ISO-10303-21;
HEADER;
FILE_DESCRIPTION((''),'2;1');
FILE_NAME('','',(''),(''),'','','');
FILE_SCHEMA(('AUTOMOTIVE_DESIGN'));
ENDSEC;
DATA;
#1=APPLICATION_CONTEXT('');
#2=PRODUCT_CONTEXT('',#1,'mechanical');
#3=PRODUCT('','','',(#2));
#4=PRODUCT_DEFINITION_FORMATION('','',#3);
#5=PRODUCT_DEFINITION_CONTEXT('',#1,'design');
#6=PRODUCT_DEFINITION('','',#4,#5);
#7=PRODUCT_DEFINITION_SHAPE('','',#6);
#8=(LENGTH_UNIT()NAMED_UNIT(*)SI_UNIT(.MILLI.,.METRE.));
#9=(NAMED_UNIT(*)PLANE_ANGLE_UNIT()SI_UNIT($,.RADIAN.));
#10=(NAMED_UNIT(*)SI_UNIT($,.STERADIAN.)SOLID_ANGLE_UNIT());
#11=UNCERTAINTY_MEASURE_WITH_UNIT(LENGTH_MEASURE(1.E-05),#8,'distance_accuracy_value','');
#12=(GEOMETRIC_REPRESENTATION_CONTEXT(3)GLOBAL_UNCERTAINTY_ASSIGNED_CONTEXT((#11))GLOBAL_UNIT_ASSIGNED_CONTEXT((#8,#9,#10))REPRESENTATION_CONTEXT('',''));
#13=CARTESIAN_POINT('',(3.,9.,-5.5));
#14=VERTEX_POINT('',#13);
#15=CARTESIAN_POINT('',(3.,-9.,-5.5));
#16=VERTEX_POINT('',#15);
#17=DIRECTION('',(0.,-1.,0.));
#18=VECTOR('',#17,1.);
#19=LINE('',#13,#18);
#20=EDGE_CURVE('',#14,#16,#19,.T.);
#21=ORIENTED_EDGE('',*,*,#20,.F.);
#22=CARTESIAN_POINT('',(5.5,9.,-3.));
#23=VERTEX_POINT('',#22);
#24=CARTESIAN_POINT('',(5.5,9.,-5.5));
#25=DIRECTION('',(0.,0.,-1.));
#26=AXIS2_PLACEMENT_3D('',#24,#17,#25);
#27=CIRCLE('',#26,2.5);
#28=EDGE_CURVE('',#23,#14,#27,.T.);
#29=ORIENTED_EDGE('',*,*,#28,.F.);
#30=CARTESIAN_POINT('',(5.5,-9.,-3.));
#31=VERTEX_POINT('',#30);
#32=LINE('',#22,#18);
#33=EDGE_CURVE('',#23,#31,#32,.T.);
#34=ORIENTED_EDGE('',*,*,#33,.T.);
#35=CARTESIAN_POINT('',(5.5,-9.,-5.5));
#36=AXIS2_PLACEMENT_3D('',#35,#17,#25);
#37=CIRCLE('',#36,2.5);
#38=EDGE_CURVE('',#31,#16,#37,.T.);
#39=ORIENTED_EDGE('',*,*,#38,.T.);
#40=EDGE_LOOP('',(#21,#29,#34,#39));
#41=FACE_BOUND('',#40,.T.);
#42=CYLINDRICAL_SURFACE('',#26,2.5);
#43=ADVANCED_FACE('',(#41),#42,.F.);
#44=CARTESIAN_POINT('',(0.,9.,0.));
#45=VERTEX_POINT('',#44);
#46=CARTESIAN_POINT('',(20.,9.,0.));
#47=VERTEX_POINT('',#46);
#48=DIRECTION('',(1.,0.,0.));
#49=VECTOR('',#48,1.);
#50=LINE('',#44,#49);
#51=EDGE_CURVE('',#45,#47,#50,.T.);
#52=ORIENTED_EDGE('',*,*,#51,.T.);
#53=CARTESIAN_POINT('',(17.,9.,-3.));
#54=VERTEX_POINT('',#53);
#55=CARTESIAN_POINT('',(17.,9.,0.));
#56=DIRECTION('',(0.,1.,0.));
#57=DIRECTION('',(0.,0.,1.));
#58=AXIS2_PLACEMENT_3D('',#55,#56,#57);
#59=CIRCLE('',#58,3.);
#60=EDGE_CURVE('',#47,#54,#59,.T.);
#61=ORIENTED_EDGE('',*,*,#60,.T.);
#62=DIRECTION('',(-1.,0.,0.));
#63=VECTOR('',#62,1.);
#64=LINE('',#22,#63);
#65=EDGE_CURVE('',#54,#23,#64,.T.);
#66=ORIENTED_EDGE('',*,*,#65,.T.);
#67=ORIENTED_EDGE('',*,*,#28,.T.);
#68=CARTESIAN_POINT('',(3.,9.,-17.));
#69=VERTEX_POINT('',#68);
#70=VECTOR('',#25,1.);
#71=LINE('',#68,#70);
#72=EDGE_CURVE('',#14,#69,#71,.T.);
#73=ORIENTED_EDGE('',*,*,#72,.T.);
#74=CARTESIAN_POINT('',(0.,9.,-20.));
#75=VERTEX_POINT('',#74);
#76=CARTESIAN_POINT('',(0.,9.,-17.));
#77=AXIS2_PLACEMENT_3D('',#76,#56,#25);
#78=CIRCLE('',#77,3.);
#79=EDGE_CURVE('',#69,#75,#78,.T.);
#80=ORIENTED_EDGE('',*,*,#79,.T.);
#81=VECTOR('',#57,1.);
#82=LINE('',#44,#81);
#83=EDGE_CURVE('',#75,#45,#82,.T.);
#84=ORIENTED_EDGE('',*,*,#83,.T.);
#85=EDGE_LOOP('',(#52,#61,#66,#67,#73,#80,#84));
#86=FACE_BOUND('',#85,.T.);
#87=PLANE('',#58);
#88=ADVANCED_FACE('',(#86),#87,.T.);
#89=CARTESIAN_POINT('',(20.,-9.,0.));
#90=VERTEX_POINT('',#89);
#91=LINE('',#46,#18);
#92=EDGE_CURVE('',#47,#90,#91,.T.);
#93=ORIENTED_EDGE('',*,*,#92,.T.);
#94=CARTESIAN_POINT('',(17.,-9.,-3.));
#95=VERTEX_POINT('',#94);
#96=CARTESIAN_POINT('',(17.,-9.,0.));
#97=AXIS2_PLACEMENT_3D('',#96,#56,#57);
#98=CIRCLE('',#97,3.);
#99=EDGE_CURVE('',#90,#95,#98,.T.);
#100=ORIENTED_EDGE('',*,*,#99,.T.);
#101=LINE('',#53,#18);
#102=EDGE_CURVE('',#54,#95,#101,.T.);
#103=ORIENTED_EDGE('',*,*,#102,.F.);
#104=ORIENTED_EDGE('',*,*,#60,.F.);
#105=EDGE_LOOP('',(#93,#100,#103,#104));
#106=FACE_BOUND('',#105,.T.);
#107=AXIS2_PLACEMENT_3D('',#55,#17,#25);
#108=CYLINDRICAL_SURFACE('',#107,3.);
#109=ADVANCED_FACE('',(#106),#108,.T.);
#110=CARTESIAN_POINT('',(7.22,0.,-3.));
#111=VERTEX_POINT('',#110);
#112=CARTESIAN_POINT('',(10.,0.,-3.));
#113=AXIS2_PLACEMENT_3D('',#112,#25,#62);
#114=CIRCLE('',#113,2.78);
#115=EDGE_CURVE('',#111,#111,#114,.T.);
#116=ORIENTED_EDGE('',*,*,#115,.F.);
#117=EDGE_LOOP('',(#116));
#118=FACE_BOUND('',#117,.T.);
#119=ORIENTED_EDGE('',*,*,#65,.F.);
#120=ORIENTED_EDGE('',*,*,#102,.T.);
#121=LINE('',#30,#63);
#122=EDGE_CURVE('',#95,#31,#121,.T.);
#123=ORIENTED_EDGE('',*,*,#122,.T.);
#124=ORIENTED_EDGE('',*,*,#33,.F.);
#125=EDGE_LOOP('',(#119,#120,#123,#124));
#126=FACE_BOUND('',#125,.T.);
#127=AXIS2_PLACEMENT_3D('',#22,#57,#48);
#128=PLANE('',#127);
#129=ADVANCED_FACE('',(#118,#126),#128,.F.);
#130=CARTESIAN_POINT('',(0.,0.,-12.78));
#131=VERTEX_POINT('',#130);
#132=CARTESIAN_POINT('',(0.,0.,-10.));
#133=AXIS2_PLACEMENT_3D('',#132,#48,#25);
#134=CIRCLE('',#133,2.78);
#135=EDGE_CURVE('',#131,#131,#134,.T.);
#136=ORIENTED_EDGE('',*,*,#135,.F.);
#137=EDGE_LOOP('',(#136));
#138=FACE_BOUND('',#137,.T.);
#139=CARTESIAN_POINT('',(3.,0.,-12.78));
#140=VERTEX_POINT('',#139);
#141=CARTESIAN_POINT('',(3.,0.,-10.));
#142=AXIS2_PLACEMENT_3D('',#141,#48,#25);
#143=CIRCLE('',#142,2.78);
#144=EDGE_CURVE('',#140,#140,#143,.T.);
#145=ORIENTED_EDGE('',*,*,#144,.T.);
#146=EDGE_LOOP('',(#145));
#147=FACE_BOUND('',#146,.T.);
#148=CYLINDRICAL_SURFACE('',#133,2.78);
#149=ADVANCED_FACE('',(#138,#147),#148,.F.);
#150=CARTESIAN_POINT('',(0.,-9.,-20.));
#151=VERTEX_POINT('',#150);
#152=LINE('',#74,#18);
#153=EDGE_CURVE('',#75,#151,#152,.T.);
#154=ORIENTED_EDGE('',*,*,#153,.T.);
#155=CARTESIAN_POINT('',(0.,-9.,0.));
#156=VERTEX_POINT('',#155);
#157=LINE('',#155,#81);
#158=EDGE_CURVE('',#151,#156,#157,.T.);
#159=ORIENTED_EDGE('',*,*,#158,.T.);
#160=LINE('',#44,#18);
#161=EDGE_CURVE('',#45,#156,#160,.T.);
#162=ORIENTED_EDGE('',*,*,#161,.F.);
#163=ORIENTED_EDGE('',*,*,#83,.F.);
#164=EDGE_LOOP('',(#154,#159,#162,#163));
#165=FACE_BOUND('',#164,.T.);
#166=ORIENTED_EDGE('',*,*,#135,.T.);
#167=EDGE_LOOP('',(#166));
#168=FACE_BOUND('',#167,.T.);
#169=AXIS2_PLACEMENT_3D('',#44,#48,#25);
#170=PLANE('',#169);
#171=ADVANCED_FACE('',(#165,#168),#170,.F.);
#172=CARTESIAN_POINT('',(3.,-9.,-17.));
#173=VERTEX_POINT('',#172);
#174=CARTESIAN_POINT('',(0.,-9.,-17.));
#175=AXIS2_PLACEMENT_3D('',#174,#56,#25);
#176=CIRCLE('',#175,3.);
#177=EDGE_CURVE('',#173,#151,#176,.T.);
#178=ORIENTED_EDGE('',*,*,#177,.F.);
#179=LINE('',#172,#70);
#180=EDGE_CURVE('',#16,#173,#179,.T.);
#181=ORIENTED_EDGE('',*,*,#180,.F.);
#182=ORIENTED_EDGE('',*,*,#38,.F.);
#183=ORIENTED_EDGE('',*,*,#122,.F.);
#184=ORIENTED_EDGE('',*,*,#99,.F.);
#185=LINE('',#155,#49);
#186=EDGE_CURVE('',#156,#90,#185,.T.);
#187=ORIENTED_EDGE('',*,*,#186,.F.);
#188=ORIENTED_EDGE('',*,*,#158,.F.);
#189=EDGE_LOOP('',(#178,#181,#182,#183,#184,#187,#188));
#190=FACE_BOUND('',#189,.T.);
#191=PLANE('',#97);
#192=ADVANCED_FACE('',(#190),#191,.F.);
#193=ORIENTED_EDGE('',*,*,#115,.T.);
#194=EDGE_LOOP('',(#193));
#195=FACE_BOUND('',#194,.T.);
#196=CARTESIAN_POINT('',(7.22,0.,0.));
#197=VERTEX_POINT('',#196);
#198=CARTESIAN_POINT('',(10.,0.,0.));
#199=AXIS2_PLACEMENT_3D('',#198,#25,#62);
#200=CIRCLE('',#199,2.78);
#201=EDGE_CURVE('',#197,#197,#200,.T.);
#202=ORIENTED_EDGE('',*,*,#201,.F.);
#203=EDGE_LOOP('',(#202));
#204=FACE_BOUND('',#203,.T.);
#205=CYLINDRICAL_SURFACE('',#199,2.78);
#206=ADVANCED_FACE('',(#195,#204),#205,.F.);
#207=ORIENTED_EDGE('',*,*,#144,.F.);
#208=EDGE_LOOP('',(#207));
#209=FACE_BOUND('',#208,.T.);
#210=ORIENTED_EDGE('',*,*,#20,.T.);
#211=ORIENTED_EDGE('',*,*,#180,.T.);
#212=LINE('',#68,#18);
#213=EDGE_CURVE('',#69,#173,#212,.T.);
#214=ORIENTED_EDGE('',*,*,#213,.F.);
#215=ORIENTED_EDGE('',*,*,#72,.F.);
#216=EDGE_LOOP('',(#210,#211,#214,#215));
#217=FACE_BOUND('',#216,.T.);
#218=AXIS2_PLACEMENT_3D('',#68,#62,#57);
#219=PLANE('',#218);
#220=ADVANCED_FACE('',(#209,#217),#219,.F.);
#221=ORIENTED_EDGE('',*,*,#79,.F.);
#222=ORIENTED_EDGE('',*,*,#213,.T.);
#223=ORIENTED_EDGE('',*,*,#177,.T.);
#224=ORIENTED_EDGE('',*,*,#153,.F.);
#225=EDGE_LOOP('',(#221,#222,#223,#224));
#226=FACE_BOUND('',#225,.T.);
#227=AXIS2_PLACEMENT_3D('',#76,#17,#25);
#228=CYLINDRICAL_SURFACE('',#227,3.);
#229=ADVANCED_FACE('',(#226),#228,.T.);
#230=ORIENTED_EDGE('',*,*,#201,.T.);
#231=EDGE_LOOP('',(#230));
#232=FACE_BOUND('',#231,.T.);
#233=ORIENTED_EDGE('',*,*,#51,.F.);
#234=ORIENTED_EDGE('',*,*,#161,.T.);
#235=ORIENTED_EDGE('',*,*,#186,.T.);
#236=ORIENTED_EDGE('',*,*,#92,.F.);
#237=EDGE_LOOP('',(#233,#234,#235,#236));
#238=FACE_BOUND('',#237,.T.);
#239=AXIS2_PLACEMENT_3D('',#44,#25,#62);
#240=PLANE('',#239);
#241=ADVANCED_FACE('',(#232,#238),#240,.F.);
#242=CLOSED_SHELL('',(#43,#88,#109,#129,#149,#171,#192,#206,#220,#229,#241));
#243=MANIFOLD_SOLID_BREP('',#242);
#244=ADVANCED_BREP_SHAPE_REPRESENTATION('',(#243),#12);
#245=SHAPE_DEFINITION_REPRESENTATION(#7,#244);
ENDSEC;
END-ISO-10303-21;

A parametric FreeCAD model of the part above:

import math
import FreeCAD as App
import Part
import Sketcher

doc = App.newDocument("Part")
body = doc.addObject("PartDesign::Body", "Body")

sketch1 = body.newObject("Sketcher::SketchObject", "Sketch")
sketch1.AttachmentSupport = (doc.getObject("XZ_Plane"), [""])
sketch1.MapMode = "FlatFace"
sketch1.addGeometry([
    Part.LineSegment(App.Vector(0, -20, 0), App.Vector(0, 0, 0)),
    Part.LineSegment(App.Vector(0, 0, 0), App.Vector(20, 0, 0)),
    Part.ArcOfCircle(Part.Circle(App.Vector(17, 0, 0), App.Vector(0, 0, 1), 3), math.radians(-90), math.radians(0)),
    Part.LineSegment(App.Vector(17, -3, 0), App.Vector(5.5, -3, 0)),
    Part.ArcOfCircle(Part.Circle(App.Vector(5.5, -5.5, 0), App.Vector(0, 0, 1), 2.5), math.radians(90), math.radians(180)),
    Part.LineSegment(App.Vector(3, -5.5, 0), App.Vector(3, -17, 0)),
    Part.ArcOfCircle(Part.Circle(App.Vector(0, -17, 0), App.Vector(0, 0, 1), 3), math.radians(-90), math.radians(0)),
], False)
sketch1.addConstraint([
    Sketcher.Constraint("Coincident", 0, 2, 1, 1),
    Sketcher.Constraint("Coincident", 1, 2, 2, 2),
    Sketcher.Constraint("Tangent", 2, 1, 3, 1),
    Sketcher.Constraint("Tangent", 3, 2, 4, 1),
    Sketcher.Constraint("Tangent", 4, 2, 5, 1),
    Sketcher.Constraint("Tangent", 5, 2, 6, 2),
    Sketcher.Constraint("Coincident", 6, 1, 0, 1),
    Sketcher.Constraint("Vertical", 0),
    Sketcher.Constraint("Horizontal", 1),
    Sketcher.Constraint("Horizontal", 3),
    Sketcher.Constraint("Vertical", 5),
    Sketcher.Constraint("Coincident", 0, 2, -1, 1),
    Sketcher.Constraint("Equal", 2, 6),
    Sketcher.Constraint("PointOnObject", 2, 3, -1),
    Sketcher.Constraint("PointOnObject", 6, 3, -2),
    Sketcher.Constraint("Equal", 1, 0),
    Sketcher.Constraint("Radius", 2, 3.0),
    Sketcher.Constraint("Radius", 4, 2.5),
    Sketcher.Constraint("DistanceX", 1, 1, 1, 2, 20.0),
])
pad1 = body.newObject("PartDesign::Pad", "Pad")
pad1.Profile = sketch1
pad1.Length = 18
pad1.Midplane = True

sketch2 = body.newObject("Sketcher::SketchObject", "Sketch001")
sketch2.AttachmentSupport = (doc.getObject("XY_Plane"), [""])
sketch2.MapMode = "FlatFace"
sketch2.AttachmentOffset = App.Placement(App.Vector(0, 0, -3), App.Rotation())
sketch2.addGeometry(Part.Circle(App.Vector(10, 0, 0), App.Vector(0, 0, 1), 2.8), False)
sketch2.addConstraint([
    Sketcher.Constraint("PointOnObject", 0, 3, -1),
    Sketcher.Constraint("Diameter", 0, 5.56),
    Sketcher.Constraint("DistanceX", -1, 1, 0, 3, 10.0),
])
pocket1 = body.newObject("PartDesign::Pocket", "Pocket")
pocket1.Profile = sketch2
pocket1.Type = "ThroughAll"
pocket1.Reversed = True

sketch3 = body.newObject("Sketcher::SketchObject", "Sketch002")
sketch3.AttachmentSupport = (doc.getObject("YZ_Plane"), [""])
sketch3.MapMode = "FlatFace"
sketch3.AttachmentOffset = App.Placement(App.Vector(0, 0, 3), App.Rotation())
sketch3.addGeometry(Part.Circle(App.Vector(0, -10, 0), App.Vector(0, 0, 1), 2.8), False)
sketch3.addConstraint([
    Sketcher.Constraint("PointOnObject", 0, 3, -2),
    Sketcher.Constraint("Diameter", 0, 5.56),
    Sketcher.Constraint("DistanceY", 0, 3, -1, 1, 10.0),
])
pocket2 = body.newObject("PartDesign::Pocket", "Pocket001")
pocket2.Profile = sketch3
pocket2.Type = "ThroughAll"

doc.recompute()
